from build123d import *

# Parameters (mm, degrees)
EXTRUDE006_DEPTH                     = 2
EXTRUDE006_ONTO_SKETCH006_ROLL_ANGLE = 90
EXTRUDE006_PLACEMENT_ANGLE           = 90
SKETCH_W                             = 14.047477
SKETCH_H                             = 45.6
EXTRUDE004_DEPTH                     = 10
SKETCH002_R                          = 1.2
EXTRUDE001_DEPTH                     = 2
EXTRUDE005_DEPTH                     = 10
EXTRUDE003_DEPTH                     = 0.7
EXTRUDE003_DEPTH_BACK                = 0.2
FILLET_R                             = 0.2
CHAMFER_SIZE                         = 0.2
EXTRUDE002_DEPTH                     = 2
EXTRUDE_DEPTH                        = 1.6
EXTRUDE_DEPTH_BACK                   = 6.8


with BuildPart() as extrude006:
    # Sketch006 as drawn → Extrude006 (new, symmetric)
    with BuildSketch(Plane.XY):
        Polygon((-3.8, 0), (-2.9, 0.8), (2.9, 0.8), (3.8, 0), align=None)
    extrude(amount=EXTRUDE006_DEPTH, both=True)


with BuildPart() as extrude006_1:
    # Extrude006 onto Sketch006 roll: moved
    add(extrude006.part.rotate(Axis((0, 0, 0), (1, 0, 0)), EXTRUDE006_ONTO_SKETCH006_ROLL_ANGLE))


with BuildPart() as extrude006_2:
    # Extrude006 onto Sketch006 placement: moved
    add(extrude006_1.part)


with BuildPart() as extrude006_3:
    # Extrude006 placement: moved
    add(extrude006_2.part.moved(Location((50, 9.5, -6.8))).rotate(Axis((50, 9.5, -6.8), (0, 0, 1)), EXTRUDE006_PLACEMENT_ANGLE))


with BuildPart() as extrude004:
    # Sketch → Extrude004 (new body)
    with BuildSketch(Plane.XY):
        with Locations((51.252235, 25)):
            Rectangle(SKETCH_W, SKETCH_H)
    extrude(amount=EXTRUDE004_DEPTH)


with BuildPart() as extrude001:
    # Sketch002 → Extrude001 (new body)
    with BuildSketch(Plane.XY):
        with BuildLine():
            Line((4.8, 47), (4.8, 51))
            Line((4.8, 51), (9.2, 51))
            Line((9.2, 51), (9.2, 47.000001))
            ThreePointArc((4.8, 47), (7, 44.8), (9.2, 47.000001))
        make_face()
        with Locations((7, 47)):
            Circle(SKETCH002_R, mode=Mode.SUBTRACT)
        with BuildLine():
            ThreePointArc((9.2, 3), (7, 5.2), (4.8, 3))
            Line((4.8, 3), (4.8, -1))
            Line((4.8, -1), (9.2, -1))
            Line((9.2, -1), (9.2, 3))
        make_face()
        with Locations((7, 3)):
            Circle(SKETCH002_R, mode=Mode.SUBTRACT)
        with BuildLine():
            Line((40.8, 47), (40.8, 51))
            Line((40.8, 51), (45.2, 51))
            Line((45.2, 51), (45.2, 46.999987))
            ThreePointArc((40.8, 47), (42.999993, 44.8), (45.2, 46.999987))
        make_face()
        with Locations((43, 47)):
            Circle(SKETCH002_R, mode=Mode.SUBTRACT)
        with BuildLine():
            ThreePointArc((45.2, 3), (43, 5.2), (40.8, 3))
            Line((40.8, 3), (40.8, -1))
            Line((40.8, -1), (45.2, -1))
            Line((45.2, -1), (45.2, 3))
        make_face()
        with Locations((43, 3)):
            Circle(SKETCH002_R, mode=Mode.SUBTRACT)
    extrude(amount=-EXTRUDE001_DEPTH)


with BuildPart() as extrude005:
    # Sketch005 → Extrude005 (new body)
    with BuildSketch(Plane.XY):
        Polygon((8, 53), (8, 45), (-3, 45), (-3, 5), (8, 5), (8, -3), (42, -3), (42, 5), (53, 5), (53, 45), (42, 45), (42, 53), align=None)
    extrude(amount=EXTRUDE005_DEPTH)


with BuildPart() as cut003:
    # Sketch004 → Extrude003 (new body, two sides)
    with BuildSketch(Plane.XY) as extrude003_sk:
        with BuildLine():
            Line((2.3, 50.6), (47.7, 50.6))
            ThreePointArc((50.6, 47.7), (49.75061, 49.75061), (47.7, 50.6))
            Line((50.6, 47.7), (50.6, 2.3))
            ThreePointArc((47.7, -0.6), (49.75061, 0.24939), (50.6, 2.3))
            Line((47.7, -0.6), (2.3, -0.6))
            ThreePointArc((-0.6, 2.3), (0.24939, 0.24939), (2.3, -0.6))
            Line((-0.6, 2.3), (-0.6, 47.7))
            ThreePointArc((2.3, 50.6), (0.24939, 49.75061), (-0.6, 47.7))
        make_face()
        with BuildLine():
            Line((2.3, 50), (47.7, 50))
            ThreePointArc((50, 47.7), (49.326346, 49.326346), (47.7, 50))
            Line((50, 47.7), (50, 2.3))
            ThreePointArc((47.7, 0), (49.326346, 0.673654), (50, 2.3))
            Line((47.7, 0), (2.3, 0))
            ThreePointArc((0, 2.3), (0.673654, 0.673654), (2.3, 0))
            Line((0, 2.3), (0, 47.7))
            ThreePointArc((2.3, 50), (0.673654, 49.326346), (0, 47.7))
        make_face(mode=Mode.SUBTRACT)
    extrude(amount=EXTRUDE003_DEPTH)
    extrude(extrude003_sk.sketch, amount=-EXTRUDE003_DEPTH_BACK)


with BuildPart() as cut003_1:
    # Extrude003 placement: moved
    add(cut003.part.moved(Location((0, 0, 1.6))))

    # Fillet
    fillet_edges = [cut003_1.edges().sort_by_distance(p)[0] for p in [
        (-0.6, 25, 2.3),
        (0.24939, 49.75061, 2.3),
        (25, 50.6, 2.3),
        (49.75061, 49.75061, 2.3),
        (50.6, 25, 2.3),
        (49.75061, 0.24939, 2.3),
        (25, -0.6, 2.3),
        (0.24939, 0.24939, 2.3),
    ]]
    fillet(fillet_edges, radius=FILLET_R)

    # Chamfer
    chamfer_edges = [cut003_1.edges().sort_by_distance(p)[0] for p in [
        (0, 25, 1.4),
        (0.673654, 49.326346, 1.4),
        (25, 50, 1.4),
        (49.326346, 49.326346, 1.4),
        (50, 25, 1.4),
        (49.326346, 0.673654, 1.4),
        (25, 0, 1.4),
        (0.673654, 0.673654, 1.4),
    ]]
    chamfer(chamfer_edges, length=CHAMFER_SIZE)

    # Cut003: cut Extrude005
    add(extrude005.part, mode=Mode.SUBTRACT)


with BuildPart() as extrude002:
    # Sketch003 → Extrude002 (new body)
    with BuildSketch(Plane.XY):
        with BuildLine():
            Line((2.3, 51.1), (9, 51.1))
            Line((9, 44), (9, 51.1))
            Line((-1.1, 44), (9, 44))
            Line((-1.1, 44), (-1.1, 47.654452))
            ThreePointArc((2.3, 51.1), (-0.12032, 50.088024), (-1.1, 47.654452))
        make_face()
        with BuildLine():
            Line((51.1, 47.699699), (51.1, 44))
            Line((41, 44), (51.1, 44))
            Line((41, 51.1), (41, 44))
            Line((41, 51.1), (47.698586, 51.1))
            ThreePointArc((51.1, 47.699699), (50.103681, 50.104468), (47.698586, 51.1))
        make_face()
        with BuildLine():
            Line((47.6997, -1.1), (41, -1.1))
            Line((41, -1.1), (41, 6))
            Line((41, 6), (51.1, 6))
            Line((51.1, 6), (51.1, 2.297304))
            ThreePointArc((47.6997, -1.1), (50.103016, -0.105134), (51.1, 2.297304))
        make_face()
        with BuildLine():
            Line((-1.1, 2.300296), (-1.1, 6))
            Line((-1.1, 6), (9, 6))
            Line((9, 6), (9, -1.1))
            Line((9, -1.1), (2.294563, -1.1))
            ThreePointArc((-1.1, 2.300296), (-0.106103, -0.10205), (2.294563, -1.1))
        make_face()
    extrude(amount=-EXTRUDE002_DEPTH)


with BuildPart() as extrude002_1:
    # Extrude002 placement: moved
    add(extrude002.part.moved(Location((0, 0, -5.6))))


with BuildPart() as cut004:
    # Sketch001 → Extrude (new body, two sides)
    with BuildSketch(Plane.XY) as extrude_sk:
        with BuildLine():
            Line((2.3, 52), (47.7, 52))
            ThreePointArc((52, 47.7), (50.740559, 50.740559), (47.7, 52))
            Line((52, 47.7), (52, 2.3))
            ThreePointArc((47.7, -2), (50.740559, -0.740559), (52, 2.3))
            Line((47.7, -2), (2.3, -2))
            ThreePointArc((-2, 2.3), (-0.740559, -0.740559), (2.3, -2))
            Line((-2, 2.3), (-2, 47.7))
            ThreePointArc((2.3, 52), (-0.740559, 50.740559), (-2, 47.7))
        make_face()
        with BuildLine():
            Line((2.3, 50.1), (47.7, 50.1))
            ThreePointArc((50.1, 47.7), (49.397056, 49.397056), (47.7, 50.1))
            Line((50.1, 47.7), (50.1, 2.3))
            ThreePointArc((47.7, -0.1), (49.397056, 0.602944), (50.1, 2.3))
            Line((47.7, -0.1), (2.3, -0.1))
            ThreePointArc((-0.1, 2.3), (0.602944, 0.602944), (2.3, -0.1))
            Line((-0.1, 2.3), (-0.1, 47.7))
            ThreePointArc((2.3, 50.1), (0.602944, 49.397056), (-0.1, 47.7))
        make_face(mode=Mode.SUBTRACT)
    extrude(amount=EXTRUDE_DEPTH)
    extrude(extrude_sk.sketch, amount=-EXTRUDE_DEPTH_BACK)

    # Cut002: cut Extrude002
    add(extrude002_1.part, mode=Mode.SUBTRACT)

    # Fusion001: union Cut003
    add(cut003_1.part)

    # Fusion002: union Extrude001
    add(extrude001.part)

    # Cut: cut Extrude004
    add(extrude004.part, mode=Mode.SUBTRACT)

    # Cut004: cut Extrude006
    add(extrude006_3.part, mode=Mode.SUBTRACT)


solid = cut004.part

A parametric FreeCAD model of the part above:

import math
import FreeCAD as App
import Part
import Sketcher
from FreeCAD import Vector


def edges_at(feature, points):
    """Names of the edges that pass closest to the given points."""
    edges = feature.Shape.Edges
    near = lambda p: min(range(len(edges)), key=lambda i: edges[i].distToShape(Part.Vertex(*p))[0])
    return sorted({f"Edge{near(p) + 1}" for p in points})


def add_polygon(sketch, points):
    """Adds a closed chain of lines whose ends are joined by coincident constraints."""
    first, n = sketch.GeometryCount, len(points)
    for a, b in zip(points, points[1:] + points[:1]):
        sketch.addGeometry(Part.LineSegment(App.Vector(*a, 0), App.Vector(*b, 0)), False)
    for i in range(n):
        sketch.addConstraint(Sketcher.Constraint("Coincident", first + i, 2, first + (i + 1) % n, 1))

doc = App.newDocument("Part")
params = doc.addObject("Spreadsheet::Sheet", "Params")
for row, (alias, value) in enumerate([
    ("sketch1_width", "7.6 mm"),
    ("sketch1_width2", "5.8 mm"),
    ("pad1_length", "4 mm"),
    ("sketch2_height", "45.6 mm"),
    ("pad2_length", "10 mm"),
    ("sketch3_diameter", "2.4 mm"),
    ("sketch3_radius", "2.2 mm"),
    ("sketch3_height", "4 mm"),
    ("pad3_length", "2 mm"),
    ("sketch4_width", "11 mm"),
    ("sketch4_width2", "34 mm"),
    ("sketch4_height", "8 mm"),
    ("sketch4_height2", "40 mm"),
    ("pad4_length", "10 mm"),
    ("sketch5_radius", "2.899999 mm"),
    ("sketch5_radius2", "2.299999 mm"),
    ("sketch5_width", "45.4 mm"),
    ("pad5_length", "0.7 mm"),
    ("pad5_length2", "0.2 mm"),
    ("fillet_radius", "0.2 mm"),
    ("chamfer_size", "0.2 mm"),
    ("sketch6_width", "6.7 mm"),
    ("sketch6_width2", "10.1 mm"),
    ("sketch6_width3", "10.1 mm"),
    ("sketch6_width4", "10.1 mm"),
    ("sketch6_width5", "10.1 mm"),
    ("pad6_length", "2 mm"),
    ("sketch7_radius", "4.300001 mm"),
    ("sketch7_radius2", "2.400001 mm"),
    ("sketch7_width", "45.4 mm"),
    ("pad7_length", "1.6 mm"),
    ("pad7_length2", "6.8 mm"),
], start=1):
    params.set(f"A{row}", alias)
    params.set(f"B{row}", "=" + value)
    params.setAlias(f"B{row}", alias)

body = doc.addObject("PartDesign::Body", "Body")

# Sketch on XY plane
sketch1 = body.newObject("Sketcher::SketchObject", "Sketch")
sketch1.AttachmentSupport = (doc.getObject("XY_Plane"), [""])
sketch1.MapMode = "FlatFace"
add_polygon(sketch1, [(-2.9, 0.8), (-3.8, 0), (3.8, 0), (2.9, 0.8)])  # lines 0-3
sketch1.addConstraint([
    Sketcher.Constraint("Horizontal", 1),
    Sketcher.Constraint("Horizontal", 3),
    Sketcher.Constraint("Symmetric", 0, 2, 1, 2, -1, 1),
    Sketcher.Constraint("Equal", 0, 2),
    Sketcher.Constraint("DistanceX", 1, 1, 1, 2, 7.6),
    Sketcher.Constraint("DistanceX", 3, 2, 3, 1, 5.8),
    Sketcher.Constraint("DistanceY", -1, 1, 2, 2, 0.8),
])
sketch1.setExpression("Constraints[8]", "Params.sketch1_width")
sketch1.setExpression("Constraints[9]", "Params.sketch1_width2")
pad1 = body.newObject("PartDesign::Pad", "Pad")
pad1.Profile = sketch1
pad1.setExpression("Length", "Params.pad1_length")
pad1.Midplane = True
body2 = doc.addObject("PartDesign::Body", "Body001")
doc.recompute()

body.Placement = App.Placement(Vector(0, 0, 0), App.Rotation(Vector(1, 0, 0), 90))
boolean = body2.newObject("PartDesign::Boolean", "Boolean")
boolean.Type = "Fuse"
boolean.addObjects([body])
body3 = doc.addObject("PartDesign::Body", "Body002")
doc.recompute()

body2.Placement = App.Placement(Vector(50, 9.5, -6.8), App.Rotation(Vector(0, 0, 1), 90))
boolean2 = body3.newObject("PartDesign::Boolean", "Boolean001")
boolean2.Type = "Fuse"
boolean2.addObjects([body2])
body4 = doc.addObject("PartDesign::Body", "Body003")

# Sketch on XY plane
sketch2 = body4.newObject("Sketcher::SketchObject", "Sketch001")
sketch2.AttachmentSupport = (doc.getObject("XY_Plane003"), [""])
sketch2.MapMode = "FlatFace"
add_polygon(sketch2, [(44.228496, 47.8), (44.228496, 2.2), (58.275973, 2.2), (58.275973, 47.8)])  # lines 0-3
sketch2.addConstraint([
    Sketcher.Constraint("Vertical", 0),
    Sketcher.Constraint("Horizontal", 1),
    Sketcher.Constraint("Vertical", 2),
    Sketcher.Constraint("Horizontal", 3),
    Sketcher.Constraint("DistanceY", 0, 2, 0, 1, 45.6),
    Sketcher.Constraint("DistanceY", -1, 1, 0, 2, 2.2),
    Sketcher.Constraint("DistanceX", 1, 1, 1, 2, 14.047477),
    Sketcher.Constraint("DistanceX", -1, 1, 0, 2, 44.228496),
])
sketch2.setExpression("Constraints[8]", "Params.sketch2_height")
pad2 = body4.newObject("PartDesign::Pad", "Pad001")
pad2.Profile = sketch2
pad2.setExpression("Length", "Params.pad2_length")
body5 = doc.addObject("PartDesign::Body", "Body004")
body5.AllowCompound = True

# Sketch on XY plane
sketch3 = body5.newObject("Sketcher::SketchObject", "Sketch002")
sketch3.AttachmentSupport = (doc.getObject("XY_Plane004"), [""])
sketch3.MapMode = "FlatFace"
sketch3.addGeometry([
    Part.LineSegment(Vector(4.8, 51, 0), Vector(4.8, 47, 0)),  # 0
    Part.ArcOfCircle(Part.Circle(Vector(7, 47, 0), Vector(0, 0, 1), 2.2), math.radians(180), math.radians(360.000026)),  # 1
    Part.LineSegment(Vector(9.2, 47.000001, 0), Vector(9.2, 51, 0)),  # 2
    Part.LineSegment(Vector(9.2, 51, 0), Vector(4.8, 51, 0)),  # 3
    Part.Circle(Vector(7, 47, 0), Vector(0, 0, 1), 1.2),  # 4
    Part.ArcOfCircle(Part.Circle(Vector(7, 3, 0), Vector(0, 0, 1), 2.2), math.radians(0), math.radians(180)),  # 5
    Part.LineSegment(Vector(4.8, 3, 0), Vector(4.8, -1, 0)),  # 6
    Part.LineSegment(Vector(4.8, -1, 0), Vector(9.2, -1, 0)),  # 7
    Part.LineSegment(Vector(9.2, -1, 0), Vector(9.2, 3, 0)),  # 8
    Part.Circle(Vector(7, 3, 0), Vector(0, 0, 1), 1.2),  # 9
    Part.LineSegment(Vector(40.8, 51, 0), Vector(40.8, 47, 0)),  # 10
    Part.ArcOfCircle(Part.Circle(Vector(43, 47, 0), Vector(0, 0, 1), 2.2), math.radians(180), math.radians(359.999661)),  # 11
    Part.LineSegment(Vector(45.2, 46.999987, 0), Vector(45.2, 51, 0)),  # 12
    Part.LineSegment(Vector(45.2, 51, 0), Vector(40.8, 51, 0)),  # 13
    Part.Circle(Vector(43, 47, 0), Vector(0, 0, 1), 1.2),  # 14
    Part.ArcOfCircle(Part.Circle(Vector(43, 3, 0), Vector(0, 0, 1), 2.2), math.radians(0), math.radians(180)),  # 15
    Part.LineSegment(Vector(40.8, 3, 0), Vector(40.8, -1, 0)),  # 16
    Part.LineSegment(Vector(40.8, -1, 0), Vector(45.2, -1, 0)),  # 17
    Part.LineSegment(Vector(45.2, -1, 0), Vector(45.2, 3, 0)),  # 18
    Part.Circle(Vector(43, 3, 0), Vector(0, 0, 1), 1.2),  # 19
], False)
sketch3.addConstraint([
    Sketcher.Constraint("Tangent", 0, 2, 1, 1),
    Sketcher.Constraint("Tangent", 1, 2, 2, 1),
    Sketcher.Constraint("Coincident", 2, 2, 3, 1),
    Sketcher.Constraint("Coincident", 3, 2, 0, 1),
    Sketcher.Constraint("Tangent", 5, 2, 6, 1),
    Sketcher.Constraint("Coincident", 6, 2, 7, 1),
    Sketcher.Constraint("Coincident", 7, 2, 8, 1),
    Sketcher.Constraint("Tangent", 8, 2, 5, 1),
    Sketcher.Constraint("Tangent", 10, 2, 11, 1),
    Sketcher.Constraint("Coincident", 11, 2, 12, 1),
    Sketcher.Constraint("Coincident", 12, 2, 13, 1),
    Sketcher.Constraint("Coincident", 13, 2, 10, 1),
    Sketcher.Constraint("Tangent", 15, 2, 16, 1),
    Sketcher.Constraint("Coincident", 16, 2, 17, 1),
    Sketcher.Constraint("Coincident", 17, 2, 18, 1),
    Sketcher.Constraint("Tangent", 18, 2, 15, 1),
    Sketcher.Constraint("Vertical", 0),
    Sketcher.Constraint("Vertical", 2),
    Sketcher.Constraint("Horizontal", 3),
    Sketcher.Constraint("Vertical", 6),
    Sketcher.Constraint("Horizontal", 7),
    Sketcher.Constraint("Vertical", 8),
    Sketcher.Constraint("Vertical", 10),
    Sketcher.Constraint("Vertical", 12),
    Sketcher.Constraint("Horizontal", 13),
    Sketcher.Constraint("Vertical", 16),
    Sketcher.Constraint("Horizontal", 17),
    Sketcher.Constraint("Vertical", 18),
    Sketcher.Constraint("Coincident", 4, 3, 1, 3),
    Sketcher.Constraint("Coincident", 9, 3, 5, 3),
    Sketcher.Constraint("Coincident", 14, 3, 11, 3),
    Sketcher.Constraint("Coincident", 19, 3, 15, 3),
    Sketcher.Constraint("Equal", 1, 5),
    Sketcher.Constraint("Equal", 4, 9),
    Sketcher.Constraint("Equal", 5, 11),
    Sketcher.Constraint("Equal", 9, 14),
    Sketcher.Constraint("Equal", 11, 15),
    Sketcher.Constraint("Equal", 14, 19),
    Sketcher.Constraint("Horizontal", 4, 3, 11, 3),
    Sketcher.Constraint("Horizontal", 9, 3, 15, 3),
    Sketcher.Constraint("Horizontal", 3, 2, 12, 2),
    Sketcher.Constraint("Horizontal", 7, 2, 16, 2),
    Sketcher.Constraint("Vertical", 4, 3, 5, 3),
    Sketcher.Constraint("Vertical", 14, 3, 15, 3),
    Sketcher.Constraint("Equal", 2, 6),
    Sketcher.Constraint("Diameter", 4, 2.4),
    Sketcher.Constraint("Radius", 1, 2.2),
    Sketcher.Constraint("DistanceY", 0, 2, 0, 1, 4.0),
    Sketcher.Constraint("DistanceX", -1, 1, 1, 3, 7.0),
    Sketcher.Constraint("DistanceY", -1, 1, 1, 3, 47.0),
    Sketcher.Constraint("DistanceY", -1, 1, 5, 3, 3.0),
    Sketcher.Constraint("DistanceX", -1, 1, 11, 3, 43.0),
    Sketcher.Constraint("DistanceY", 12, 1, 12, 2, 4.000013),
])
sketch3.setExpression("Constraints[45]", "Params.sketch3_diameter")
sketch3.setExpression("Constraints[46]", "Params.sketch3_radius")
sketch3.setExpression("Constraints[47]", "Params.sketch3_height")
pad3 = body5.newObject("PartDesign::Pad", "Pad002")
pad3.Profile = sketch3
pad3.setExpression("Length", "Params.pad3_length")
pad3.Reversed = True
body6 = doc.addObject("PartDesign::Body", "Body005")

# Sketch on XY plane
sketch4 = body6.newObject("Sketcher::SketchObject", "Sketch003")
sketch4.AttachmentSupport = (doc.getObject("XY_Plane005"), [""])
sketch4.MapMode = "FlatFace"
add_polygon(sketch4, [(8, 53), (8, 45), (-3, 45), (-3, 5), (8, 5), (8, -3), (42, -3), (42, 5), (53, 5), (53, 45), (42, 45), (42, 53)])  # lines 0-11
sketch4.addConstraint([
    Sketcher.Constraint("Vertical", 0),
    Sketcher.Constraint("Horizontal", 1),
    Sketcher.Constraint("Vertical", 2),
    Sketcher.Constraint("Horizontal", 3),
    Sketcher.Constraint("Vertical", 4),
    Sketcher.Constraint("Horizontal", 5),
    Sketcher.Constraint("Vertical", 6),
    Sketcher.Constraint("Horizontal", 7),
    Sketcher.Constraint("Vertical", 8),
    Sketcher.Constraint("Horizontal", 9),
    Sketcher.Constraint("Vertical", 10),
    Sketcher.Constraint("Horizontal", 11),
    Sketcher.Constraint("Horizontal", 3, 2, 6, 2),
    Sketcher.Constraint("Horizontal", 1, 2, 8, 2),
    Sketcher.Constraint("Vertical", 0, 2, 3, 2),
    Sketcher.Constraint("Vertical", 6, 2, 9, 2),
    Sketcher.Constraint("Equal", 3, 7),
    Sketcher.Constraint("Equal", 0, 4),
    Sketcher.Constraint("DistanceX", 1, 2, 1, 1, 11.0),
    Sketcher.Constraint("DistanceX", 5, 1, 5, 2, 34.0),
    Sketcher.Constraint("DistanceY", 0, 2, 0, 1, 8.0),
    Sketcher.Constraint("DistanceY", 2, 2, 2, 1, 40.0),
    Sketcher.Constraint("DistanceX", -1, 1, 0, 2, 8.0),
    Sketcher.Constraint("DistanceY", -1, 1, 0, 2, 45.0),
])
sketch4.setExpression("Constraints[30]", "Params.sketch4_width")
sketch4.setExpression("Constraints[31]", "Params.sketch4_width2")
sketch4.setExpression("Constraints[32]", "Params.sketch4_height")
sketch4.setExpression("Constraints[33]", "Params.sketch4_height2")
pad4 = body6.newObject("PartDesign::Pad", "Pad003")
pad4.Profile = sketch4
pad4.setExpression("Length", "Params.pad4_length")
body7 = doc.addObject("PartDesign::Body", "Body006")

# Sketch on XY plane
sketch5 = body7.newObject("Sketcher::SketchObject", "Sketch004")
sketch5.AttachmentSupport = (doc.getObject("XY_Plane006"), [""])
sketch5.MapMode = "FlatFace"
sketch5.addGeometry([
    Part.LineSegment(Vector(47.7, 50.6, 0), Vector(2.3, 50.6, 0)),  # 0
    Part.ArcOfCircle(Part.Circle(Vector(2.299999, 47.700001, 0), Vector(0, 0, 1), 2.899999), math.radians(89.999977), math.radians(180.000023)),  # 1
    Part.LineSegment(Vector(-0.6, 47.7, 0), Vector(-0.6, 2.3, 0)),  # 2
    Part.ArcOfCircle(Part.Circle(Vector(2.299999, 2.299999, 0), Vector(0, 0, 1), 2.899999), math.radians(179.999977), math.radians(270.000023)),  # 3
    Part.LineSegment(Vector(2.3, -0.6, 0), Vector(47.7, -0.6, 0)),  # 4
    Part.ArcOfCircle(Part.Circle(Vector(47.700001, 2.299999, 0), Vector(0, 0, 1), 2.899999), math.radians(-90.000023), math.radians(0.000023)),  # 5
    Part.LineSegment(Vector(50.6, 2.3, 0), Vector(50.6, 47.7, 0)),  # 6
    Part.ArcOfCircle(Part.Circle(Vector(47.700001, 47.700001, 0), Vector(0, 0, 1), 2.899999), math.radians(-0.000023), math.radians(90.000023)),  # 7
    Part.LineSegment(Vector(2.3, 50, 0), Vector(47.7, 50, 0)),  # 8
    Part.ArcOfCircle(Part.Circle(Vector(47.700001, 47.700001, 0), Vector(0, 0, 1), 2.299999), math.radians(-0.000034), math.radians(90.000034)),  # 9
    Part.LineSegment(Vector(50, 47.7, 0), Vector(50, 2.3, 0)),  # 10
    Part.ArcOfCircle(Part.Circle(Vector(47.700001, 2.299999, 0), Vector(0, 0, 1), 2.299999), math.radians(-90.000034), math.radians(0.000034)),  # 11
    Part.LineSegment(Vector(47.7, 0, 0), Vector(2.3, 0, 0)),  # 12
    Part.ArcOfCircle(Part.Circle(Vector(2.299999, 2.299999, 0), Vector(0, 0, 1), 2.299999), math.radians(179.999966), math.radians(270.000034)),  # 13
    Part.LineSegment(Vector(0, 2.3, 0), Vector(0, 47.7, 0)),  # 14
    Part.ArcOfCircle(Part.Circle(Vector(2.299999, 47.700001, 0), Vector(0, 0, 1), 2.299999), math.radians(89.999966), math.radians(180.000034)),  # 15
], False)
sketch5.addConstraint([
    Sketcher.Constraint("Tangent", 0, 2, 1, 1),
    Sketcher.Constraint("Tangent", 1, 2, 2, 1),
    Sketcher.Constraint("Tangent", 2, 2, 3, 1),
    Sketcher.Constraint("Tangent", 3, 2, 4, 1),
    Sketcher.Constraint("Tangent", 4, 2, 5, 1),
    Sketcher.Constraint("Tangent", 5, 2, 6, 1),
    Sketcher.Constraint("Tangent", 6, 2, 7, 1),
    Sketcher.Constraint("Tangent", 7, 2, 0, 1),
    Sketcher.Constraint("Tangent", 8, 2, 9, 2),
    Sketcher.Constraint("Tangent", 9, 1, 10, 1),
    Sketcher.Constraint("Tangent", 10, 2, 11, 2),
    Sketcher.Constraint("Tangent", 11, 1, 12, 1),
    Sketcher.Constraint("Tangent", 12, 2, 13, 2),
    Sketcher.Constraint("Tangent", 13, 1, 14, 1),
    Sketcher.Constraint("Tangent", 14, 2, 15, 2),
    Sketcher.Constraint("Tangent", 15, 1, 8, 1),
    Sketcher.Constraint("Horizontal", 0),
    Sketcher.Constraint("Vertical", 2),
    Sketcher.Constraint("Horizontal", 4),
    Sketcher.Constraint("Vertical", 6),
    Sketcher.Constraint("Horizontal", 8),
    Sketcher.Constraint("Vertical", 10),
    Sketcher.Constraint("Horizontal", 12),
    Sketcher.Constraint("Vertical", 14),
    Sketcher.Constraint("Coincident", 9, 3, 7, 3),
    Sketcher.Constraint("Coincident", 11, 3, 5, 3),
    Sketcher.Constraint("Coincident", 13, 3, 3, 3),
    Sketcher.Constraint("Equal", 1, 3),
    Sketcher.Constraint("Equal", 3, 5),
    Sketcher.Constraint("Equal", 5, 7),
    Sketcher.Constraint("Equal", 13, 15),
    Sketcher.Constraint("PointOnObject", 11, 1, -1),
    Sketcher.Constraint("PointOnObject", 13, 1, -2),
    Sketcher.Constraint("Equal", 12, 2),
    Sketcher.Constraint("Radius", 1, 2.899999),
    Sketcher.Constraint("Radius", 9, 2.299999),
    Sketcher.Constraint("DistanceX", 0, 2, 0, 1, 45.4),
])
sketch5.setExpression("Constraints[34]", "Params.sketch5_radius")
sketch5.setExpression("Constraints[35]", "Params.sketch5_radius2")
sketch5.setExpression("Constraints[36]", "Params.sketch5_width")
pad5 = body7.newObject("PartDesign::Pad", "Pad004")
pad5.Profile = sketch5
pad5.Type = "TwoLengths"
pad5.setExpression("Length", "Params.pad5_length")
pad5.setExpression("Length2", "Params.pad5_length2")
body8 = doc.addObject("PartDesign::Body", "Body007")
body8.AllowCompound = True
doc.recompute()

body7.Placement = App.Placement(Vector(0, 0, 1.6), App.Rotation(Vector(0, 0, 1), 0))
boolean3 = body8.newObject("PartDesign::Boolean", "Boolean002")
boolean3.Type = "Fuse"
boolean3.addObjects([body7])
doc.recompute()

fillet = body8.newObject("PartDesign::Fillet", "Fillet")
fillet.Base = (boolean3, edges_at(boolean3, [
    (-0.6, 25, 2.3),
    (0.249, 49.751, 2.3),
    (25, 50.6, 2.3),
    (49.751, 49.751, 2.3),
    (50.6, 25, 2.3),
    (49.751, 0.249, 2.3),
    (25, -0.6, 2.3),
    (0.249, 0.249, 2.3),
]))
fillet.setExpression("Radius", "Params.fillet_radius")
doc.recompute()

chamfer = body8.newObject("PartDesign::Chamfer", "Chamfer")
chamfer.Base = (fillet, edges_at(fillet, [
    (0, 25, 1.4),
    (0.674, 49.326, 1.4),
    (25, 50, 1.4),
    (49.326, 49.326, 1.4),
    (50, 25, 1.4),
    (49.326, 0.674, 1.4),
    (25, 0, 1.4),
    (0.674, 0.674, 1.4),
]))
chamfer.setExpression("Size", "Params.chamfer_size")
doc.recompute()

boolean4 = body8.newObject("PartDesign::Boolean", "Boolean003")
boolean4.Type = "Cut"
boolean4.addObjects([body6])
body9 = doc.addObject("PartDesign::Body", "Body008")
body9.AllowCompound = True

# Sketch on XY plane
sketch6 = body9.newObject("Sketcher::SketchObject", "Sketch005")
sketch6.AttachmentSupport = (doc.getObject("XY_Plane008"), [""])
sketch6.MapMode = "FlatFace"
sketch6.addGeometry([
    Part.LineSegment(Vector(9, 51.1, 0), Vector(2.3, 51.1, 0)),  # 0
    Part.ArcOfCircle(Part.Circle(Vector(2.300001, 47.699698, 0), Vector(0, 0, 1), 3.400302), math.radians(90.000011), math.radians(180.762432)),  # 1
    Part.LineSegment(Vector(-1.1, 47.654452, 0), Vector(-1.1, 44, 0)),  # 2
    Part.LineSegment(Vector(-1.1, 44, 0), Vector(9, 44, 0)),  # 3
    Part.LineSegment(Vector(9, 44, 0), Vector(9, 51.1, 0)),  # 4
    Part.LineSegment(Vector(51.1, 44, 0), Vector(51.1, 47.699699, 0)),  # 5
    Part.ArcOfCircle(Part.Circle(Vector(47.699697, 47.699698, 0), Vector(0, 0, 1), 3.400303), math.radians(0.000023), math.radians(90.018728)),  # 6
    Part.LineSegment(Vector(47.698586, 51.1, 0), Vector(41, 51.1, 0)),  # 7
    Part.LineSegment(Vector(41, 51.1, 0), Vector(41, 44, 0)),  # 8
    Part.LineSegment(Vector(41, 44, 0), Vector(51.1, 44, 0)),  # 9
    Part.LineSegment(Vector(41, -1.1, 0), Vector(47.6997, -1.1, 0)),  # 10
    Part.ArcOfCircle(Part.Circle(Vector(47.699699, 2.300302, 0), Vector(0, 0, 1), 3.400302), math.radians(-89.999987), math.radians(-0.050519)),  # 11
    Part.LineSegment(Vector(51.1, 2.297304, 0), Vector(51.1, 6, 0)),  # 12
    Part.LineSegment(Vector(51.1, 6, 0), Vector(41, 6, 0)),  # 13
    Part.LineSegment(Vector(41, 6, 0), Vector(41, -1.1, 0)),  # 14
    Part.LineSegment(Vector(-1.1, 6, 0), Vector(-1.1, 2.300296, 0)),  # 15
    Part.ArcOfCircle(Part.Circle(Vector(2.300301, 2.300296, 0), Vector(0, 0, 1), 3.400301), math.radians(-180), math.radians(-90.096684)),  # 16
    Part.LineSegment(Vector(2.294563, -1.1, 0), Vector(9, -1.1, 0)),  # 17
    Part.LineSegment(Vector(9, -1.1, 0), Vector(9, 6, 0)),  # 18
    Part.LineSegment(Vector(9, 6, 0), Vector(-1.1, 6, 0)),  # 19
], False)
sketch6.addConstraint([
    Sketcher.Constraint("Coincident", 0, 2, 1, 1),
    Sketcher.Constraint("Coincident", 1, 2, 2, 1),
    Sketcher.Constraint("Coincident", 2, 2, 3, 1),
    Sketcher.Constraint("Coincident", 3, 2, 4, 1),
    Sketcher.Constraint("Coincident", 4, 2, 0, 1),
    Sketcher.Constraint("Coincident", 5, 2, 6, 1),
    Sketcher.Constraint("Coincident", 6, 2, 7, 1),
    Sketcher.Constraint("Coincident", 7, 2, 8, 1),
    Sketcher.Constraint("Coincident", 8, 2, 9, 1),
    Sketcher.Constraint("Coincident", 9, 2, 5, 1),
    Sketcher.Constraint("Coincident", 10, 2, 11, 1),
    Sketcher.Constraint("Coincident", 11, 2, 12, 1),
    Sketcher.Constraint("Coincident", 12, 2, 13, 1),
    Sketcher.Constraint("Coincident", 13, 2, 14, 1),
    Sketcher.Constraint("Coincident", 14, 2, 10, 1),
    Sketcher.Constraint("Coincident", 15, 2, 16, 1),
    Sketcher.Constraint("Coincident", 16, 2, 17, 1),
    Sketcher.Constraint("Coincident", 17, 2, 18, 1),
    Sketcher.Constraint("Coincident", 18, 2, 19, 1),
    Sketcher.Constraint("Coincident", 19, 2, 15, 1),
    Sketcher.Constraint("Horizontal", 0),
    Sketcher.Constraint("Vertical", 2),
    Sketcher.Constraint("Horizontal", 3),
    Sketcher.Constraint("Vertical", 4),
    Sketcher.Constraint("Vertical", 5),
    Sketcher.Constraint("Horizontal", 7),
    Sketcher.Constraint("Vertical", 8),
    Sketcher.Constraint("Horizontal", 9),
    Sketcher.Constraint("Horizontal", 10),
    Sketcher.Constraint("Vertical", 12),
    Sketcher.Constraint("Horizontal", 13),
    Sketcher.Constraint("Vertical", 14),
    Sketcher.Constraint("Vertical", 15),
    Sketcher.Constraint("Horizontal", 17),
    Sketcher.Constraint("Vertical", 18),
    Sketcher.Constraint("Horizontal", 19),
    Sketcher.Constraint("DistanceX", 0, 2, 0, 1, 6.7),
    Sketcher.Constraint("DistanceX", 3, 1, 3, 2, 10.1),
    Sketcher.Constraint("DistanceX", 9, 1, 9, 2, 10.1),
    Sketcher.Constraint("DistanceX", 13, 2, 13, 1, 10.1),
    Sketcher.Constraint("DistanceX", 19, 2, 19, 1, 10.1),
    Sketcher.Constraint("DistanceY", 4, 1, 4, 2, 7.1),
    Sketcher.Constraint("DistanceY", 8, 2, 8, 1, 7.1),
    Sketcher.Constraint("DistanceY", 14, 2, 14, 1, 7.1),
    Sketcher.Constraint("DistanceY", 18, 1, 18, 2, 7.1),
    Sketcher.Constraint("DistanceY", -1, 1, 2, 2, 44.0),
    Sketcher.Constraint("DistanceX", -1, 1, 3, 2, 9.0),
    Sketcher.Constraint("DistanceX", -1, 1, 7, 2, 41.0),
    Sketcher.Constraint("DistanceY", -1, 1, 8, 2, 44.0),
    Sketcher.Constraint("DistanceY", -1, 1, 12, 2, 6.0),
    Sketcher.Constraint("DistanceX", -1, 1, 13, 2, 41.0),
    Sketcher.Constraint("DistanceX", -1, 1, 17, 2, 9.0),
    Sketcher.Constraint("DistanceY", -1, 1, 18, 2, 6.0),
    Sketcher.Constraint("DistanceX", -1, 1, 1, 3, 2.300001),
    Sketcher.Constraint("Radius", 1, 3.400302),
    Sketcher.Constraint("Radius", 16, 3.400301),
    Sketcher.Constraint("DistanceX", 10, 1, 10, 2, 6.6997),
    Sketcher.Constraint("DistanceY", 5, 1, 5, 2, 3.699699),
    Sketcher.Constraint("Radius", 6, 3.400303),
    Sketcher.Constraint("Radius", 11, 3.400302),
    Sketcher.Constraint("DistanceY", 11, 2, 11, 3, 0.002998),
    Sketcher.Constraint("DistanceX", 7, 2, 7, 1, 6.698586),
    Sketcher.Constraint("DistanceX", 17, 1, 17, 2, 6.705437),
    Sketcher.Constraint("DistanceY", 15, 2, 15, 1, 3.699704),
])
sketch6.setExpression("Constraints[36]", "Params.sketch6_width")
sketch6.setExpression("Constraints[37]", "Params.sketch6_width2")
sketch6.setExpression("Constraints[38]", "Params.sketch6_width3")
sketch6.setExpression("Constraints[39]", "Params.sketch6_width4")
sketch6.setExpression("Constraints[40]", "Params.sketch6_width5")
pad6 = body9.newObject("PartDesign::Pad", "Pad005")
pad6.Profile = sketch6
pad6.setExpression("Length", "Params.pad6_length")
pad6.Reversed = True
body10 = doc.addObject("PartDesign::Body", "Body009")
body10.AllowCompound = True
doc.recompute()

body9.Placement = App.Placement(Vector(0, 0, -5.6), App.Rotation(Vector(0, 0, 1), 0))
boolean5 = body10.newObject("PartDesign::Boolean", "Boolean004")
boolean5.Type = "Fuse"
boolean5.addObjects([body9])
body11 = doc.addObject("PartDesign::Body", "Body010")

# Sketch on XY plane
sketch7 = body11.newObject("Sketcher::SketchObject", "Sketch006")
sketch7.AttachmentSupport = (doc.getObject("XY_Plane010"), [""])
sketch7.MapMode = "FlatFace"
sketch7.addGeometry([
    Part.LineSegment(Vector(47.7, 52, 0), Vector(2.3, 52, 0)),  # 0
    Part.ArcOfCircle(Part.Circle(Vector(2.300001, 47.699999, 0), Vector(0, 0, 1), 4.300001), math.radians(90.000007), math.radians(179.999993)),  # 1
    Part.LineSegment(Vector(-2, 47.7, 0), Vector(-2, 2.3, 0)),  # 2
    Part.ArcOfCircle(Part.Circle(Vector(2.300001, 2.300001, 0), Vector(0, 0, 1), 4.300001), math.radians(-179.999993), math.radians(-90.000007)),  # 3
    Part.LineSegment(Vector(2.3, -2, 0), Vector(47.7, -2, 0)),  # 4
    Part.ArcOfCircle(Part.Circle(Vector(47.699999, 2.300001, 0), Vector(0, 0, 1), 4.300001), math.radians(-89.999993), math.radians(-0.000007)),  # 5
    Part.LineSegment(Vector(52, 2.3, 0), Vector(52, 47.7, 0)),  # 6
    Part.ArcOfCircle(Part.Circle(Vector(47.699999, 47.699999, 0), Vector(0, 0, 1), 4.300001), math.radians(0.000007), math.radians(89.999993)),  # 7
    Part.LineSegment(Vector(2.3, 50.1, 0), Vector(47.7, 50.1, 0)),  # 8
    Part.ArcOfCircle(Part.Circle(Vector(47.699999, 47.699999, 0), Vector(0, 0, 1), 2.400001), math.radians(0.000022), math.radians(89.999978)),  # 9
    Part.LineSegment(Vector(50.1, 47.7, 0), Vector(50.1, 2.3, 0)),  # 10
    Part.ArcOfCircle(Part.Circle(Vector(47.699999, 2.300001, 0), Vector(0, 0, 1), 2.400001), math.radians(-89.999978), math.radians(-0.000022)),  # 11
    Part.LineSegment(Vector(47.7, -0.1, 0), Vector(2.3, -0.1, 0)),  # 12
    Part.ArcOfCircle(Part.Circle(Vector(2.300001, 2.300001, 0), Vector(0, 0, 1), 2.400001), math.radians(-179.999978), math.radians(-90.000022)),  # 13
    Part.LineSegment(Vector(-0.1, 2.3, 0), Vector(-0.1, 47.7, 0)),  # 14
    Part.ArcOfCircle(Part.Circle(Vector(2.300001, 47.699999, 0), Vector(0, 0, 1), 2.400001), math.radians(90.000022), math.radians(179.999978)),  # 15
], False)
sketch7.addConstraint([
    Sketcher.Constraint("Tangent", 0, 2, 1, 1),
    Sketcher.Constraint("Tangent", 1, 2, 2, 1),
    Sketcher.Constraint("Tangent", 2, 2, 3, 1),
    Sketcher.Constraint("Tangent", 3, 2, 4, 1),
    Sketcher.Constraint("Tangent", 4, 2, 5, 1),
    Sketcher.Constraint("Tangent", 5, 2, 6, 1),
    Sketcher.Constraint("Tangent", 6, 2, 7, 1),
    Sketcher.Constraint("Tangent", 7, 2, 0, 1),
    Sketcher.Constraint("Tangent", 8, 2, 9, 2),
    Sketcher.Constraint("Tangent", 9, 1, 10, 1),
    Sketcher.Constraint("Tangent", 10, 2, 11, 2),
    Sketcher.Constraint("Tangent", 11, 1, 12, 1),
    Sketcher.Constraint("Tangent", 12, 2, 13, 2),
    Sketcher.Constraint("Tangent", 13, 1, 14, 1),
    Sketcher.Constraint("Tangent", 14, 2, 15, 2),
    Sketcher.Constraint("Tangent", 15, 1, 8, 1),
    Sketcher.Constraint("Horizontal", 0),
    Sketcher.Constraint("Vertical", 2),
    Sketcher.Constraint("Horizontal", 4),
    Sketcher.Constraint("Vertical", 6),
    Sketcher.Constraint("Horizontal", 8),
    Sketcher.Constraint("Vertical", 10),
    Sketcher.Constraint("Horizontal", 12),
    Sketcher.Constraint("Vertical", 14),
    Sketcher.Constraint("Coincident", 9, 3, 7, 3),
    Sketcher.Constraint("Coincident", 11, 3, 5, 3),
    Sketcher.Constraint("Coincident", 13, 3, 3, 3),
    Sketcher.Constraint("Equal", 1, 3),
    Sketcher.Constraint("Equal", 3, 5),
    Sketcher.Constraint("Equal", 5, 7),
    Sketcher.Constraint("Equal", 13, 15),
    Sketcher.Constraint("Equal", 12, 2),
    Sketcher.Constraint("Radius", 1, 4.300001),
    Sketcher.Constraint("Radius", 9, 2.400001),
    Sketcher.Constraint("DistanceX", 0, 2, 0, 1, 45.4),
    Sketcher.Constraint("DistanceY", -1, 1, 0, 2, 52.0),
    Sketcher.Constraint("DistanceX", 1, 2, -1, 1, 2.0),
])
sketch7.setExpression("Constraints[32]", "Params.sketch7_radius")
sketch7.setExpression("Constraints[33]", "Params.sketch7_radius2")
sketch7.setExpression("Constraints[34]", "Params.sketch7_width")
pad7 = body11.newObject("PartDesign::Pad", "Pad006")
pad7.Profile = sketch7
pad7.Type = "TwoLengths"
pad7.setExpression("Length", "Params.pad7_length")
pad7.setExpression("Length2", "Params.pad7_length2")
doc.recompute()

boolean6 = body11.newObject("PartDesign::Boolean", "Boolean005")
boolean6.Type = "Cut"
boolean6.addObjects([body10])
doc.recompute()

boolean7 = body11.newObject("PartDesign::Boolean", "Boolean006")
boolean7.Type = "Fuse"
boolean7.addObjects([body8])
doc.recompute()

boolean8 = body11.newObject("PartDesign::Boolean", "Boolean007")
boolean8.Type = "Fuse"
boolean8.addObjects([body5])
doc.recompute()

boolean9 = body11.newObject("PartDesign::Boolean", "Boolean008")
boolean9.Type = "Cut"
boolean9.addObjects([body4])
doc.recompute()

boolean10 = body11.newObject("PartDesign::Boolean", "Boolean009")
boolean10.Type = "Cut"
boolean10.addObjects([body3])

doc.recompute()
